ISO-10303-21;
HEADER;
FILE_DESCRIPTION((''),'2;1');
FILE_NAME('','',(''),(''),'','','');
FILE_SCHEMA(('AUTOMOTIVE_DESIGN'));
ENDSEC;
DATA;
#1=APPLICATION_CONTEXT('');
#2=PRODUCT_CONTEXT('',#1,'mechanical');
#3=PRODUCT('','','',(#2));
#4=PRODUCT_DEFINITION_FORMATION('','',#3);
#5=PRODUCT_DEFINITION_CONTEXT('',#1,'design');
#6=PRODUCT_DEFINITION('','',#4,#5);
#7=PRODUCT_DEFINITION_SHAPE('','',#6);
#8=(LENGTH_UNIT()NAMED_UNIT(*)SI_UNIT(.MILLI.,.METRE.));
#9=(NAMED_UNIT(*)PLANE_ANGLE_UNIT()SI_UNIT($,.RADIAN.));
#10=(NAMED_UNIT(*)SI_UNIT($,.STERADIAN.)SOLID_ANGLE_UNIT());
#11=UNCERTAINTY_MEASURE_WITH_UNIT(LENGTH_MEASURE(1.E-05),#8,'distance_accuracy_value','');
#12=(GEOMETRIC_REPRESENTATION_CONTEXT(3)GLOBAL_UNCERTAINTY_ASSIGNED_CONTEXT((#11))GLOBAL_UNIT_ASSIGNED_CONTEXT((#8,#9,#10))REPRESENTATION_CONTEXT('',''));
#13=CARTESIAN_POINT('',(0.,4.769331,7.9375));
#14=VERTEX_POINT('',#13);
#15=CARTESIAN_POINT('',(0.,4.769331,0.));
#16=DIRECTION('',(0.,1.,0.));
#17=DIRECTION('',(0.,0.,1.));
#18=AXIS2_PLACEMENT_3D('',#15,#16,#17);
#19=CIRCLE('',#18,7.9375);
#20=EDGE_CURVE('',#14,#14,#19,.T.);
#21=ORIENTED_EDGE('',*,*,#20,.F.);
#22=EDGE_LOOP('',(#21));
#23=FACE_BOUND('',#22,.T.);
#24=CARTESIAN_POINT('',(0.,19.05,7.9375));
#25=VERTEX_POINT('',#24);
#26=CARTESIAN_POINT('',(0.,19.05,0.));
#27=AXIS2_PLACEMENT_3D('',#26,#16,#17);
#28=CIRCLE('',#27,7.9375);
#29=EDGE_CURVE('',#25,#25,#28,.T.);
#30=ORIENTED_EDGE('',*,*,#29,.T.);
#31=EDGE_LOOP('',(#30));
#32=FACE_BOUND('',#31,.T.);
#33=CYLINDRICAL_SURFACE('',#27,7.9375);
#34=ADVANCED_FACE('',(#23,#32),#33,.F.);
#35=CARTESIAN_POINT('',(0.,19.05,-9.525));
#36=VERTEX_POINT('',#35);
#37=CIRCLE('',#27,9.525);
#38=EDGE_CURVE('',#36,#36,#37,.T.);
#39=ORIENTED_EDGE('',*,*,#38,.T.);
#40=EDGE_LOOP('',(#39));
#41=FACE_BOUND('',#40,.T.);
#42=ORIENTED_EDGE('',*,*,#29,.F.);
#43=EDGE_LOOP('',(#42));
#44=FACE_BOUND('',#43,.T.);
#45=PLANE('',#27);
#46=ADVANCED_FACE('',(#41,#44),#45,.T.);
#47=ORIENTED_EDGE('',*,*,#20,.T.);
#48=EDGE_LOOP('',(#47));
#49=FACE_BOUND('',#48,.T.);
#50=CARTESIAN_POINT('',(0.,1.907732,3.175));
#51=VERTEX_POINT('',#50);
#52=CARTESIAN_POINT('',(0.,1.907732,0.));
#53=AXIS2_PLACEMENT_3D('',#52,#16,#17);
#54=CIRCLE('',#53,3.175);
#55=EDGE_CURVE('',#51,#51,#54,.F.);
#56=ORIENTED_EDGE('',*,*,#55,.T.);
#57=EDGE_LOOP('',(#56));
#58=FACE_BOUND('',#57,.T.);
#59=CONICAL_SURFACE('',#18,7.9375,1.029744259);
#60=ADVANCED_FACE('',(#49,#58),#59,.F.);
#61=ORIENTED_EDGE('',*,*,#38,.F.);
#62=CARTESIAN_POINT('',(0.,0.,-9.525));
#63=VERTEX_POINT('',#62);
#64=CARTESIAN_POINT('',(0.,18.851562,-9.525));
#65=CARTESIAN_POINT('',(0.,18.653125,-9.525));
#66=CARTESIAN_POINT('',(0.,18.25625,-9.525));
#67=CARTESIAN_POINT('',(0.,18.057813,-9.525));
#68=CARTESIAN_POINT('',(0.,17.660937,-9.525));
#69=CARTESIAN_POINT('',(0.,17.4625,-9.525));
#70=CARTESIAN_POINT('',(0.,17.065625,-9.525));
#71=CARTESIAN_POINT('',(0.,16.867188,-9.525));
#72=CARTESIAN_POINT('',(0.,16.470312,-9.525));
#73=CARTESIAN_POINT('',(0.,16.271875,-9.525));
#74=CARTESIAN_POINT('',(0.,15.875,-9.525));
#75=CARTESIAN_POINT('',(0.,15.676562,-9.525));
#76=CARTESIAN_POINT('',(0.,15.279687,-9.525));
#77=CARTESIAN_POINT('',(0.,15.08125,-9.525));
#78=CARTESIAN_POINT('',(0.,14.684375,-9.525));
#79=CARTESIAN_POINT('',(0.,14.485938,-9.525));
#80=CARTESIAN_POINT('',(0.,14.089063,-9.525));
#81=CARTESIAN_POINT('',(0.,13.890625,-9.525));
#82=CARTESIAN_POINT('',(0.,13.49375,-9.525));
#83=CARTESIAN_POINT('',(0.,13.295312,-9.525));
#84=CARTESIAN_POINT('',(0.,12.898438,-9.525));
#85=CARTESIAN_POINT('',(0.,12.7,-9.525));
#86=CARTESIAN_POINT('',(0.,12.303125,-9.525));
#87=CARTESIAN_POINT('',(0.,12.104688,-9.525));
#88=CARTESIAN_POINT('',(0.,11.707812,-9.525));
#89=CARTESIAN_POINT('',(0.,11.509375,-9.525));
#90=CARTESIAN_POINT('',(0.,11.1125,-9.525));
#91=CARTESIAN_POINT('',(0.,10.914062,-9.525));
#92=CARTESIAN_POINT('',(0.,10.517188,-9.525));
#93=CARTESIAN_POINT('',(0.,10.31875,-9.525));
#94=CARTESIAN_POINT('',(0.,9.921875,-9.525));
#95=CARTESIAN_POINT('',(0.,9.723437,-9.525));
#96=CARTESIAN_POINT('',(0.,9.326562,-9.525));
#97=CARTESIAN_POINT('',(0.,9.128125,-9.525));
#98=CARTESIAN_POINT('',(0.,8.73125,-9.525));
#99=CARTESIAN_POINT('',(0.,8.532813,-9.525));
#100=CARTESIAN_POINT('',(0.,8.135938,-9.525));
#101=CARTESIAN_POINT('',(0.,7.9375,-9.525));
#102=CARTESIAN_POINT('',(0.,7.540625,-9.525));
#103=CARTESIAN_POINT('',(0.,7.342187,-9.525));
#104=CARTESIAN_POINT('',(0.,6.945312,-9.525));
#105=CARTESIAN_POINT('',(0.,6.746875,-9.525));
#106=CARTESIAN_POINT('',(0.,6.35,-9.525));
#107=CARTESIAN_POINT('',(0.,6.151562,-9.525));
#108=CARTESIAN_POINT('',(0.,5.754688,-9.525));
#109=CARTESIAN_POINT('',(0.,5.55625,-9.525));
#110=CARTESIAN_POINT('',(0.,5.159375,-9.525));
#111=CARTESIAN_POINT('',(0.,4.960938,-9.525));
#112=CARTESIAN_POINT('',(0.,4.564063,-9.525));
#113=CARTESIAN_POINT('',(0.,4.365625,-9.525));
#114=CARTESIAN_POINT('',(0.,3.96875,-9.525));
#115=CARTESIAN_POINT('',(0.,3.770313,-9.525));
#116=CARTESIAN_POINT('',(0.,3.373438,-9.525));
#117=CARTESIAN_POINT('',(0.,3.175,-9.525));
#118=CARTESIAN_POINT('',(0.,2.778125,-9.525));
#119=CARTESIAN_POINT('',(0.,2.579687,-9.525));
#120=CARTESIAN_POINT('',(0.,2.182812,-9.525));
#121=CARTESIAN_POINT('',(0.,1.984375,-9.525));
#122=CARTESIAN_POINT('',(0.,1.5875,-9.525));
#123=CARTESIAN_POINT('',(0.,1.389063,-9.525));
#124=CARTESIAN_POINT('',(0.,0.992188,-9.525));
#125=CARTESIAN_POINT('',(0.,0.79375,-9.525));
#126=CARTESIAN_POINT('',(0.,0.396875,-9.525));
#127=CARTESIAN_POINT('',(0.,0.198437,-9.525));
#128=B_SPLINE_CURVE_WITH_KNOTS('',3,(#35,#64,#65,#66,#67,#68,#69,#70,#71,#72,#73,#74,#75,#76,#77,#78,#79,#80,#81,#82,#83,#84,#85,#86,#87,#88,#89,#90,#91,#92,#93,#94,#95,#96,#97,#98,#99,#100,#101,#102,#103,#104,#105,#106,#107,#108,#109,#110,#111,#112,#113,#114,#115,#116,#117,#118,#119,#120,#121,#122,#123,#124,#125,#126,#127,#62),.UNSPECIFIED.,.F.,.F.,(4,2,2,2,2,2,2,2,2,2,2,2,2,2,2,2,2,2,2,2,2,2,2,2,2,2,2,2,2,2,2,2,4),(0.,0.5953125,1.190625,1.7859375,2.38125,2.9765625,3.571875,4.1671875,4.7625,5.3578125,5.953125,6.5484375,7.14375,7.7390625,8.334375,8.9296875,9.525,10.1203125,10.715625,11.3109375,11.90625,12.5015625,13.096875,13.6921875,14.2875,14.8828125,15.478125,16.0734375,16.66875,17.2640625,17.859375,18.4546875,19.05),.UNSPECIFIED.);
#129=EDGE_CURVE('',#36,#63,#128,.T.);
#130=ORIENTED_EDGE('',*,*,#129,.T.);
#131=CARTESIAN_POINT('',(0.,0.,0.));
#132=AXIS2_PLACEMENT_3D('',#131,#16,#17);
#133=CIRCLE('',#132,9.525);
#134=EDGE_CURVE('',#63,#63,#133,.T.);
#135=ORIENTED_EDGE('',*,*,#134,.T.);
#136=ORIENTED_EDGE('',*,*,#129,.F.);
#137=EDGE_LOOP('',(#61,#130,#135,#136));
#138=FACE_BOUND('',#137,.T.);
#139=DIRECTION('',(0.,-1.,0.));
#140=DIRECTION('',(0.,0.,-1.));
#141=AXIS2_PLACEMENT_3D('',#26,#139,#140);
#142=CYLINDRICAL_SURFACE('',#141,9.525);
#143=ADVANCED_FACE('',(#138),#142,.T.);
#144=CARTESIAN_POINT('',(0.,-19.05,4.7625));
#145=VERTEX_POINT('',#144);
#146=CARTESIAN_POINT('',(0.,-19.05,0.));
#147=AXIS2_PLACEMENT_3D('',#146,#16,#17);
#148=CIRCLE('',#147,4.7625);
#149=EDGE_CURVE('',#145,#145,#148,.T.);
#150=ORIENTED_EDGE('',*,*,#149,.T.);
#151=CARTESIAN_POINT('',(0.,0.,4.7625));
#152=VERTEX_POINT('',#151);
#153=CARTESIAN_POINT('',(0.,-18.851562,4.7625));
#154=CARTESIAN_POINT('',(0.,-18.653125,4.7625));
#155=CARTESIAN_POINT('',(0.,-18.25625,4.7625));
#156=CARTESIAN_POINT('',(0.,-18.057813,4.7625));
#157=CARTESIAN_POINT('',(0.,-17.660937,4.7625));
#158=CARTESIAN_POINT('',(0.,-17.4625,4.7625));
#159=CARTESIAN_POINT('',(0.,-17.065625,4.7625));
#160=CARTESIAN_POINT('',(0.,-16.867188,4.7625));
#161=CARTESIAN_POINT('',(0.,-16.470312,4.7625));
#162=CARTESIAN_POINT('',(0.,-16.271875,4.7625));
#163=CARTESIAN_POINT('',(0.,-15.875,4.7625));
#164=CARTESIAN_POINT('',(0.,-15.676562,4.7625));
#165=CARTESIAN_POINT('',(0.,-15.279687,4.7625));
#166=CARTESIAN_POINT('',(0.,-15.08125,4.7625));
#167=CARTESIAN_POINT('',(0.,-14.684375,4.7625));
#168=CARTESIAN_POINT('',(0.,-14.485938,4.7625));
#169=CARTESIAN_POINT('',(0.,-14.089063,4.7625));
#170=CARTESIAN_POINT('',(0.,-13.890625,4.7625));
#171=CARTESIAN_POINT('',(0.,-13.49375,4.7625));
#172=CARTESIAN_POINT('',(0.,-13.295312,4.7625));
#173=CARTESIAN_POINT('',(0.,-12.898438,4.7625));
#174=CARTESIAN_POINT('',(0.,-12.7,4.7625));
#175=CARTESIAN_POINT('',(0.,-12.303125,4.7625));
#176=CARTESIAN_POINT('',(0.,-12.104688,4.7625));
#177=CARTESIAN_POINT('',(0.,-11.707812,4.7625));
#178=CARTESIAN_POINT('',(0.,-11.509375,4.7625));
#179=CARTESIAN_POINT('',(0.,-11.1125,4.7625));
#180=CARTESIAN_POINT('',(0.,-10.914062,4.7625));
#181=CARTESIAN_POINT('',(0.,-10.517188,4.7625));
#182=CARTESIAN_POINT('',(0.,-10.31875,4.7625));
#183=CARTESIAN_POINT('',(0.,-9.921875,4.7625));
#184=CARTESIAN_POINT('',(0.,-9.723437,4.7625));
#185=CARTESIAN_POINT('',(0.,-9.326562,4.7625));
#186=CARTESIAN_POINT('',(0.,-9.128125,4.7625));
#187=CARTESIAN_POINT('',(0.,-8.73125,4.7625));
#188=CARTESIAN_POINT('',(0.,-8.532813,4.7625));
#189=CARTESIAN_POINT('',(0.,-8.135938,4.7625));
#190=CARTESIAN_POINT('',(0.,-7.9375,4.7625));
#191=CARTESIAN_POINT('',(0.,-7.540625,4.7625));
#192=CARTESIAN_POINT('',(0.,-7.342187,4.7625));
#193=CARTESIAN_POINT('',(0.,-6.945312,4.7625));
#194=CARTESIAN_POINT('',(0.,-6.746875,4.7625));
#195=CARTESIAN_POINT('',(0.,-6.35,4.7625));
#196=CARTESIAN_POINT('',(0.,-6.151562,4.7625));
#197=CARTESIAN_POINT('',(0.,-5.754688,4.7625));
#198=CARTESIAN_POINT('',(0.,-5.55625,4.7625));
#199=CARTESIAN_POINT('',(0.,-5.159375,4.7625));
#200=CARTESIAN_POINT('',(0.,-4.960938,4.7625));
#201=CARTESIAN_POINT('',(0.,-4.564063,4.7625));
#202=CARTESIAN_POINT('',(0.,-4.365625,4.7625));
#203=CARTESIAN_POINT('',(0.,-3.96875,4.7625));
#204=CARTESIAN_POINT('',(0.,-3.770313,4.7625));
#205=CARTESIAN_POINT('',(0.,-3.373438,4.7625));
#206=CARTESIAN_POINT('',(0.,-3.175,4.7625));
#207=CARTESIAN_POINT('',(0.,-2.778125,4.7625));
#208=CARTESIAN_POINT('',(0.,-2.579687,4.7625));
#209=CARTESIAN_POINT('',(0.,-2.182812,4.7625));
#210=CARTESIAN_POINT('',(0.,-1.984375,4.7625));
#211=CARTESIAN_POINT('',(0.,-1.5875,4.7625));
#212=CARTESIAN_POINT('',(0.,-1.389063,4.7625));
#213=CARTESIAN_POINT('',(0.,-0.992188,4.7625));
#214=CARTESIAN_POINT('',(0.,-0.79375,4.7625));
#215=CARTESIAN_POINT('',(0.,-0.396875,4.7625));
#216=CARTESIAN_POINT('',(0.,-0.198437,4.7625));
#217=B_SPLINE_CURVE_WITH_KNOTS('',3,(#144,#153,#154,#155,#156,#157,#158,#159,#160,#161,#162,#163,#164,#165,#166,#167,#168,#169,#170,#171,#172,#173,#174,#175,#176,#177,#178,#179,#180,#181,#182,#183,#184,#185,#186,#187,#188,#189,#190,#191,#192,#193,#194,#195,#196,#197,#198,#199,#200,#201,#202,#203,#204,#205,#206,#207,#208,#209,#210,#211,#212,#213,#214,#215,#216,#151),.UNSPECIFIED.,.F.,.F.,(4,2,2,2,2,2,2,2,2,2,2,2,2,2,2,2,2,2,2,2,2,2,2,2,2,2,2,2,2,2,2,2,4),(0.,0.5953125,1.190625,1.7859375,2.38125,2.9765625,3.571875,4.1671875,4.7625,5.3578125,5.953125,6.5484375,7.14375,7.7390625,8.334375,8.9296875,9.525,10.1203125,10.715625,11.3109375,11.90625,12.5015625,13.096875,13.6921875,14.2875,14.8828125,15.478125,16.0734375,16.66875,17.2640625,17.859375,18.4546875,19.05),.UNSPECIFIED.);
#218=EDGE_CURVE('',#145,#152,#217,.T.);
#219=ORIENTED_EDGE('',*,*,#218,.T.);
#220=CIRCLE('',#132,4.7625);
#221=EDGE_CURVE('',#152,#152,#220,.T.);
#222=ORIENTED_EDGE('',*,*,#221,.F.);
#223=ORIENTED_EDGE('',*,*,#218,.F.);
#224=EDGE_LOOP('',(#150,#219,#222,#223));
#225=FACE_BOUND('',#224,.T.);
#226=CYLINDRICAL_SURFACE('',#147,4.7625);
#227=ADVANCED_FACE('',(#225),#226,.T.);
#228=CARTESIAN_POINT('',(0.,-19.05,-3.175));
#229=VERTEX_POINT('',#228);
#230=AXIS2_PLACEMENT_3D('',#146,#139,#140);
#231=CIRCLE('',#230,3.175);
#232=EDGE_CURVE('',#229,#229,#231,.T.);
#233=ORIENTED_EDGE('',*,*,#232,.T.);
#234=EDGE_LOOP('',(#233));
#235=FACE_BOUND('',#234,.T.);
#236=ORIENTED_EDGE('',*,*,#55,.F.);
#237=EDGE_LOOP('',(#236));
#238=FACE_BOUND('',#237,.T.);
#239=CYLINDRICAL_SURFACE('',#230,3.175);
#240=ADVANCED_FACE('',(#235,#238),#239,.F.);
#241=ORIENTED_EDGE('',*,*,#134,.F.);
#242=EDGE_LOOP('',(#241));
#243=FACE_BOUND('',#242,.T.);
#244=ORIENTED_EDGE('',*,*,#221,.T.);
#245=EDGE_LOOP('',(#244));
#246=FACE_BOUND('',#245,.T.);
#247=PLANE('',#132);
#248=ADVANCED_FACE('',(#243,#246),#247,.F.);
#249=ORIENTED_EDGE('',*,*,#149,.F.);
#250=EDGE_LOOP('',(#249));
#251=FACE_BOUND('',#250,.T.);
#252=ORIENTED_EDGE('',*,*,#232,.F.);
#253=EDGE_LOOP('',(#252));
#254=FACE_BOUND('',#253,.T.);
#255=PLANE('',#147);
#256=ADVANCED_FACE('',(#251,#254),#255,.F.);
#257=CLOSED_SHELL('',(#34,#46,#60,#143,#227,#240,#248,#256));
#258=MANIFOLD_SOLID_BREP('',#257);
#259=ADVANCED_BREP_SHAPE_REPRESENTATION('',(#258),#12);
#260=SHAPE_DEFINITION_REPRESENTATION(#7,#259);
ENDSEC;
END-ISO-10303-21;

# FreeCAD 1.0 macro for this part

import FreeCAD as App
import Part
import Sketcher
from FreeCAD import Vector
Q = App.Units.Quantity

doc = App.newDocument("Part")
params = doc.addObject("Spreadsheet::Sheet", "Params")
for row, (alias, value) in enumerate([
    ("sketch1_diameter", "0.75 in"),
    ("pad1_length", "0.75 in"),
    ("sketch2_diameter", "0.375 in"),
    ("pad2_length", "0.75 in"),
    ("sketch3_diameter", "0.625 in"),
    ("hole_diameter", "0.625 in"),
    ("hole_depth", "14.280669 mm"),
    ("sketch4_diameter", "0.25 in"),
    ("hole2_diameter", "0.25 in"),
], start=1):
    params.set(f"A{row}", alias)
    params.set(f"B{row}", "=" + value)
    params.setAlias(f"B{row}", alias)

body = doc.addObject("PartDesign::Body", "Body")

# Sketch on XZ plane
sketch1 = body.newObject("Sketcher::SketchObject", "Sketch")
sketch1.AttachmentSupport = (doc.getObject("XZ_Plane"), [""])
sketch1.MapMode = "FlatFace"
sketch1.addGeometry(Part.Circle(Vector(0, 0, 0), Vector(0, 0, 1), 10), False)
sketch1.addConstraint([
    Sketcher.Constraint("Coincident", 0, 3, -1, 1),
    Sketcher.Constraint("Diameter", 0, Q("0.75 in")),
])
sketch1.setExpression("Constraints[1]", "Params.sketch1_diameter")
pad1 = body.newObject("PartDesign::Pad", "Pad")
pad1.Profile = sketch1
pad1.setExpression("Length", "Params.pad1_length")
pad1.Reversed = True

# Sketch on XZ plane
sketch2 = body.newObject("Sketcher::SketchObject", "Sketch001")
sketch2.AttachmentSupport = (doc.getObject("XZ_Plane"), [""])
sketch2.MapMode = "FlatFace"
sketch2.addGeometry(Part.Circle(Vector(0, 0, 0), Vector(0, 0, 1), 4.8), False)
sketch2.addConstraint([
    Sketcher.Constraint("Coincident", 0, 3, -1, 1),
    Sketcher.Constraint("Diameter", 0, Q("0.375 in")),
])
sketch2.setExpression("Constraints[1]", "Params.sketch2_diameter")
pad2 = body.newObject("PartDesign::Pad", "Pad001")
pad2.Profile = sketch2
pad2.setExpression("Length", "Params.pad2_length")

# Sketch on XZ plane
sketch3 = body.newObject("Sketcher::SketchObject", "Sketch002")
sketch3.AttachmentSupport = (doc.getObject("XZ_Plane"), [""])
sketch3.MapMode = "FlatFace"
sketch3.AttachmentOffset = App.Placement(Vector(0, 0, -0.75 * 25.4), App.Rotation())
sketch3.addGeometry(Part.Circle(Vector(0, 0, 0), Vector(0, 0, 1), 8), False)
sketch3.addConstraint([
    Sketcher.Constraint("Coincident", 0, 3, -1, 1),
    Sketcher.Constraint("Diameter", 0, Q("0.625 in")),
])
sketch3.setExpression("Constraints[1]", "Params.sketch3_diameter")
doc.recompute()
hole = body.newObject("PartDesign::Hole", "Hole")
hole.Profile = sketch3
hole.ThreadType = "None"
hole.setExpression("Diameter", "Params.hole_diameter")
hole.DepthType = "Dimension"
hole.setExpression("Depth", "Params.hole_depth")
hole.DrillPoint = "Angled"
hole.DrillPointAngle = 118
hole.Reversed = True

# Sketch on XZ plane
sketch4 = body.newObject("Sketcher::SketchObject", "Sketch003")
sketch4.AttachmentSupport = (doc.getObject("XZ_Plane"), [""])
sketch4.MapMode = "FlatFace"
sketch4.AttachmentOffset = App.Placement(Vector(0, 0, 0.75 * 25.4), App.Rotation())
sketch4.addGeometry(Part.Circle(Vector(0, 0, 0), Vector(0, 0, 1), 3.2), False)
sketch4.addConstraint([
    Sketcher.Constraint("Coincident", 0, 3, -1, 1),
    Sketcher.Constraint("Diameter", 0, Q("0.25 in")),
])
sketch4.setExpression("Constraints[1]", "Params.sketch4_diameter")
doc.recompute()
hole2 = body.newObject("PartDesign::Hole", "Hole001")
hole2.Profile = sketch4
hole2.ThreadType = "None"
hole2.setExpression("Diameter", "Params.hole2_diameter")
hole2.DepthType = "ThroughAll"

doc.recompute()
